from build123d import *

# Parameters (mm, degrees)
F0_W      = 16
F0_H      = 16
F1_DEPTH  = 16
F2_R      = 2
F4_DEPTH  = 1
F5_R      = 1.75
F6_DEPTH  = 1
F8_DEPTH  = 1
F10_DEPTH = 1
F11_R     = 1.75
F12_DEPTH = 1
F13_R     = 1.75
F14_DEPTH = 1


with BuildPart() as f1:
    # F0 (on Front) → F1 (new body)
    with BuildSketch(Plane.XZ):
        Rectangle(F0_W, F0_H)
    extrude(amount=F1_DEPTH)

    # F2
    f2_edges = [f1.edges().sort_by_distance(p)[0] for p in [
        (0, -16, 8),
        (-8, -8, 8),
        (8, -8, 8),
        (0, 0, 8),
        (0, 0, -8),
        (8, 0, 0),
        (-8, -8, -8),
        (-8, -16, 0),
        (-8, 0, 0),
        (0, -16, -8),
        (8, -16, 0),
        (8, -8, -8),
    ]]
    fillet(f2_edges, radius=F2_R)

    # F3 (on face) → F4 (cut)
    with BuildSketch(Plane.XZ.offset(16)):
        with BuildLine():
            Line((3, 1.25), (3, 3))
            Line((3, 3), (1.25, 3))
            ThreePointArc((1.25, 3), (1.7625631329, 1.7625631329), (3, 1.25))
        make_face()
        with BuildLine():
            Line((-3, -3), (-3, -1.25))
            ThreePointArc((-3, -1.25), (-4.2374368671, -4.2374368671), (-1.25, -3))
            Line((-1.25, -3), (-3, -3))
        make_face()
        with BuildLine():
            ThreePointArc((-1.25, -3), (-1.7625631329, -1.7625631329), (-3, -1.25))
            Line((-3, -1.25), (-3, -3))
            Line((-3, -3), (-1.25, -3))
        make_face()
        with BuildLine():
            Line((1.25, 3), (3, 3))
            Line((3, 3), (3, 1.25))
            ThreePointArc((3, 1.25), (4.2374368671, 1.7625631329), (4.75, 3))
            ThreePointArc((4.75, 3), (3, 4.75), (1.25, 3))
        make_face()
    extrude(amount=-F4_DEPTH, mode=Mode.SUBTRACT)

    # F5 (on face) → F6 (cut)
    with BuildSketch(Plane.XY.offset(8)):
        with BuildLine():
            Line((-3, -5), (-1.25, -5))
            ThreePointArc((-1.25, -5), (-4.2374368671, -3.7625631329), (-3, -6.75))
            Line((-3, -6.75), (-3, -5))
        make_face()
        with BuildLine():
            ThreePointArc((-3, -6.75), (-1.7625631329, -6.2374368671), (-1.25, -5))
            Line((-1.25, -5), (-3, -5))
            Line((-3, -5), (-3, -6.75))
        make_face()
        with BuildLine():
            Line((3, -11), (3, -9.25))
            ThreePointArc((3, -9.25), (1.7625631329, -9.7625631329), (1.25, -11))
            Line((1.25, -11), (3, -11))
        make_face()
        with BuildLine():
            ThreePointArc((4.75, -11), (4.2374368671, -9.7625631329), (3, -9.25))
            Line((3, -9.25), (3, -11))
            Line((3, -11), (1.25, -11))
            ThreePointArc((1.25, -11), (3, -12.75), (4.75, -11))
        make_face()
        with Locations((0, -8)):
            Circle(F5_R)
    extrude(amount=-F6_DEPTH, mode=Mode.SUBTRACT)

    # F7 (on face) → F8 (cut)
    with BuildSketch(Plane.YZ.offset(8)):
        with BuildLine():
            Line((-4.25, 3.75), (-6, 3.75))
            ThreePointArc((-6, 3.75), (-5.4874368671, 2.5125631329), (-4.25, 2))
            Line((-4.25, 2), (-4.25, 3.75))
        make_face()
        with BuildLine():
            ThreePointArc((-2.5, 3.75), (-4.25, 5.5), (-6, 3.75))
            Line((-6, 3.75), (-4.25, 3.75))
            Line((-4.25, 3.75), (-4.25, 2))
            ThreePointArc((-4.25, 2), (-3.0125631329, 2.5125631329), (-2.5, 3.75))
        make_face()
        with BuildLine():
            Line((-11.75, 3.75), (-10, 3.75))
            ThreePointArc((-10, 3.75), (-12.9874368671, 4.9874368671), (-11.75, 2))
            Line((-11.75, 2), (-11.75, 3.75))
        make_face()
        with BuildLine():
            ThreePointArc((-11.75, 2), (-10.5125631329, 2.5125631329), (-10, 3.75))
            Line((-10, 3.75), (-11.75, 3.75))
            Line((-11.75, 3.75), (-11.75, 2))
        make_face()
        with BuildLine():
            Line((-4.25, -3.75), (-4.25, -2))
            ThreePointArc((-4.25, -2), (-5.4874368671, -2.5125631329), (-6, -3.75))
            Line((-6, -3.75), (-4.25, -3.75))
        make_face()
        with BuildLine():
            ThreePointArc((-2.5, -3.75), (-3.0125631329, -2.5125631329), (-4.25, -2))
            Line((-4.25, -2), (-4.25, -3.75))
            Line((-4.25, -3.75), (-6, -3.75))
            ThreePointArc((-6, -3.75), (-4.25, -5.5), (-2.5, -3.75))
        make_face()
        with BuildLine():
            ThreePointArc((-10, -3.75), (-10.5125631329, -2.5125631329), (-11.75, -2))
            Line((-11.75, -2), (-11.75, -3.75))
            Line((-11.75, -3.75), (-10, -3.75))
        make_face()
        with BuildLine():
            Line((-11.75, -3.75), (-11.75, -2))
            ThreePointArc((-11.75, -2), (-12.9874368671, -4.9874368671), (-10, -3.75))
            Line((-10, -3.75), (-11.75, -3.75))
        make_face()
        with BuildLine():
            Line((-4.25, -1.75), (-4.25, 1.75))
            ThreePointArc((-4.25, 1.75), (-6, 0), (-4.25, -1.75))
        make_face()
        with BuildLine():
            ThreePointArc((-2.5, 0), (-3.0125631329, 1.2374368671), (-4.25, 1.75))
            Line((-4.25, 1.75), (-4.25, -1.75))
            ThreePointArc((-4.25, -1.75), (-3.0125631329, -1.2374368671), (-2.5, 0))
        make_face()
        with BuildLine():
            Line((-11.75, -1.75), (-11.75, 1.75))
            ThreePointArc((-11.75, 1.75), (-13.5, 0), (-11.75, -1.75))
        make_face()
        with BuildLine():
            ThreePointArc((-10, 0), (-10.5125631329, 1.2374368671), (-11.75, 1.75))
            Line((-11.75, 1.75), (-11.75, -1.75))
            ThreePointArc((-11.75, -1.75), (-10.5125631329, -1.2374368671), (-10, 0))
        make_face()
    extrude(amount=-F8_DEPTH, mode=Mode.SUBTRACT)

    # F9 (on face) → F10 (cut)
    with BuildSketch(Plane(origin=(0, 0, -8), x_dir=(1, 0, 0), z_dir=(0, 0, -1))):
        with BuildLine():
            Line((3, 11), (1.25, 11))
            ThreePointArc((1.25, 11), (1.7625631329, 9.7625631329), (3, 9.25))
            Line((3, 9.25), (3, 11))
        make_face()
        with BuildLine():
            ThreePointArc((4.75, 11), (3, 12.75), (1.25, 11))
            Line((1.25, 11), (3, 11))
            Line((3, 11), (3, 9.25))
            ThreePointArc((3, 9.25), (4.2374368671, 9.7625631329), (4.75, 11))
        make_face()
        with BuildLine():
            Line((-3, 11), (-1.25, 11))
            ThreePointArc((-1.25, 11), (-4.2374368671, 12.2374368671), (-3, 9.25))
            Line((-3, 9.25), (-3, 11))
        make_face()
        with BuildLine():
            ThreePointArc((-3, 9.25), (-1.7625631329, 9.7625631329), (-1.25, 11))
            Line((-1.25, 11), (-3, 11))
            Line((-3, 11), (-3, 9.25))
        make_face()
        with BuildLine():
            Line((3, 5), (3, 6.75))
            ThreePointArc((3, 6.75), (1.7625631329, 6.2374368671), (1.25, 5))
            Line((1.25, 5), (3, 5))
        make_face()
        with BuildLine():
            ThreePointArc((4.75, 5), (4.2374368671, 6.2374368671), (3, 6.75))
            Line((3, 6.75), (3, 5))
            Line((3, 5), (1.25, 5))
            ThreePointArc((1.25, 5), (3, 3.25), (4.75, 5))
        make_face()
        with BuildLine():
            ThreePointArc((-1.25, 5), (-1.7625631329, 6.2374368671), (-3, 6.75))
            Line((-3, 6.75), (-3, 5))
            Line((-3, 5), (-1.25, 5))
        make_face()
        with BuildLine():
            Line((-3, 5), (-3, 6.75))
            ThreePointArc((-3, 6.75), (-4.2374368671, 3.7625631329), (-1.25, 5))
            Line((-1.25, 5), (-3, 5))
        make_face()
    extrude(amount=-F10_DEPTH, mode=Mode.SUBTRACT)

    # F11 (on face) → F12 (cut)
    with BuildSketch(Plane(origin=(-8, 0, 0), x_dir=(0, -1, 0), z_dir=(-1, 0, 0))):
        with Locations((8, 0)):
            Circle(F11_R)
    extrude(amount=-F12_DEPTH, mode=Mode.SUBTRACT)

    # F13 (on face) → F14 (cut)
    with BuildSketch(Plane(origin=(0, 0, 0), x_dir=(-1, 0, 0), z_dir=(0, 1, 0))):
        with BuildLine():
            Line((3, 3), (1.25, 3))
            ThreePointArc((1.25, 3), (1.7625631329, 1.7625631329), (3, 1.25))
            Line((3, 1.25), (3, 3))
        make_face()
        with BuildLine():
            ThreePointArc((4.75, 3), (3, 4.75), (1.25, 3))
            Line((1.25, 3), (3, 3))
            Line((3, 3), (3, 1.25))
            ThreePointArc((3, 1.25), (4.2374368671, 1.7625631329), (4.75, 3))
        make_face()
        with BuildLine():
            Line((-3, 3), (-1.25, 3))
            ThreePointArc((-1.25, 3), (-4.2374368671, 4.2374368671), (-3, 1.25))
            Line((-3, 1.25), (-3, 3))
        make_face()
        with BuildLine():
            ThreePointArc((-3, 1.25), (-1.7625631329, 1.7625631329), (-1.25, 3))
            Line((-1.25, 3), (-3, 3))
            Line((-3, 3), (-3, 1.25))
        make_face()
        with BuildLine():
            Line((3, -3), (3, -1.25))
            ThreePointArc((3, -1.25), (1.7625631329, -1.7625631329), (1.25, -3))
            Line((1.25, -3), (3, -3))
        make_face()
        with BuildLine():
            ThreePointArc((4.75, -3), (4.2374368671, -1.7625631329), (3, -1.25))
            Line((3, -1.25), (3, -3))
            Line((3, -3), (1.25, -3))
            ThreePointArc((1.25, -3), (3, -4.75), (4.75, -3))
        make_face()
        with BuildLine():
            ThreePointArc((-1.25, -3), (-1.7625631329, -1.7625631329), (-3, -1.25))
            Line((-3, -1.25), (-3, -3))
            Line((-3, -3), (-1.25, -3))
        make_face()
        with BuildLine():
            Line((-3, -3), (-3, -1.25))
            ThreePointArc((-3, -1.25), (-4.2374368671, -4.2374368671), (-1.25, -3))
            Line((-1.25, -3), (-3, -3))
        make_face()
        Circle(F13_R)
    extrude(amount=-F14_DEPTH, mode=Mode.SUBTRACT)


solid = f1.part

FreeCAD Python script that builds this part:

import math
import FreeCAD as App
import Part
import Sketcher
Q = App.Units.Quantity


def add_polygon(sketch, points):
    """Adds a closed chain of lines whose ends are joined by coincident constraints."""
    first, n = sketch.GeometryCount, len(points)
    for a, b in zip(points, points[1:] + points[:1]):
        sketch.addGeometry(Part.LineSegment(App.Vector(*a, 0), App.Vector(*b, 0)), False)
    for i in range(n):
        sketch.addConstraint(Sketcher.Constraint("Coincident", first + i, 2, first + (i + 1) % n, 1))

doc = App.newDocument("Part")
params = doc.addObject("Spreadsheet::Sheet", "Params")
for row, (alias, value) in enumerate([
    ("sketch1_width", "16 mm"),
    ("pad1_length", "16 mm"),
    ("fillet_radius", "2 mm"),
    ("sketch2_radius", "1.75 mm"),
    ("pocket1_length", "1 mm"),
    ("sketch3_diameter", "3.5 mm"),
    ("pocket2_length", "1 mm"),
    ("sketch4_radius", "1.75 mm"),
    ("pocket3_length", "1 mm"),
    ("sketch5_radius", "1.75 mm"),
    ("pocket4_length", "1 mm"),
    ("sketch6_diameter", "3.5 mm"),
    ("pocket5_length", "1 mm"),
    ("sketch7_diameter", "3.5 mm"),
    ("pocket6_length", "1 mm"),
], start=1):
    params.set(f"A{row}", alias)
    params.set(f"B{row}", "=" + value)
    params.setAlias(f"B{row}", alias)

body = doc.addObject("PartDesign::Body", "Body")

# Sketch on XZ plane
sketch1 = doc.addObject("Sketcher::SketchObject", "Sketch")
body.addObject(sketch1)
sketch1.AttachmentSupport = (doc.XZ_Plane, [""])
sketch1.MapMode = "FlatFace"
add_polygon(sketch1, [(-8, 8), (-8, -8), (8, -8), (8, 8)])  # lines 0-3
sketch1.addConstraint([
    Sketcher.Constraint("Vertical", 0),
    Sketcher.Constraint("Horizontal", 1),
    Sketcher.Constraint("Vertical", 2),
    Sketcher.Constraint("Horizontal", 3),
    Sketcher.Constraint("Symmetric", 0, 2, 2, 2, -1, 1),
    Sketcher.Constraint("Equal", 3, 0),
    Sketcher.Constraint("DistanceX", 1, 1, 1, 2, Q("16 mm")),
])
sketch1.setExpression("Constraints[10]", "Params.sketch1_width")
pad1 = doc.addObject("PartDesign::Pad", "Pad")
body.addObject(pad1)
pad1.Profile = sketch1
pad1.setExpression("Length", "Params.pad1_length")
doc.recompute()

fillet = doc.addObject("PartDesign::Fillet", "Fillet")
body.addObject(fillet)
fillet.Base = (pad1, ["Edge1"])
fillet.UseAllEdges = True
fillet.setExpression("Radius", "Params.fillet_radius")

# Sketch on XZ plane
sketch2 = doc.addObject("Sketcher::SketchObject", "Sketch001")
body.addObject(sketch2)
sketch2.AttachmentSupport = (doc.XZ_Plane, [""])
sketch2.MapMode = "FlatFace"
sketch2.AttachmentOffset = App.Placement(App.Vector(0, 0, 16), App.Rotation())
sketch2.addGeometry([
    Part.ArcOfCircle(Part.Circle(App.Vector(3, 3, 0), App.Vector(0, 0, 1), 1.8), math.radians(180), math.radians(270)),  # 0
    Part.ArcOfCircle(Part.Circle(App.Vector(3, 3, 0), App.Vector(0, 0, 1), 1.8), math.radians(-90), math.radians(0)),  # 1
    Part.ArcOfCircle(Part.Circle(App.Vector(3, 3, 0), App.Vector(0, 0, 1), 1.8), math.radians(0), math.radians(180)),  # 2
    Part.ArcOfCircle(Part.Circle(App.Vector(-3, -3, 0), App.Vector(0, 0, 1), 1.8), math.radians(90), math.radians(360)),  # 3
    Part.ArcOfCircle(Part.Circle(App.Vector(-3, -3, 0), App.Vector(0, 0, 1), 1.8), math.radians(0), math.radians(90)),  # 4
], False)
sketch2.addConstraint([
    Sketcher.Constraint("Tangent", 0, 2, 1, 1),
    Sketcher.Constraint("Tangent", 1, 2, 2, 1),
    Sketcher.Constraint("Tangent", 2, 2, 0, 1),
    Sketcher.Constraint("Tangent", 3, 1, 4, 2),
    Sketcher.Constraint("Coincident", 4, 1, 3, 2),
    Sketcher.Constraint("Equal", 2, 3),
    Sketcher.Constraint("Symmetric", 0, 3, 3, 3, -1, 1),
    Sketcher.Constraint("Horizontal", 2, 3, 1, 2),
    Sketcher.Constraint("Horizontal", 1, 2, 2, 2),
    Sketcher.Constraint("Horizontal", 3, 3, 4, 1),
    Sketcher.Constraint("Vertical", 2, 3, 0, 2),
    Sketcher.Constraint("Vertical", 4, 3, 3, 1),
    Sketcher.Constraint("Radius", 0, Q("1.75 mm")),
    Sketcher.Constraint("DistanceX", -1, 1, 0, 3, Q("3 mm")),
    Sketcher.Constraint("DistanceY", -1, 1, 0, 3, Q("3 mm")),
])
sketch2.setExpression("Constraints[12]", "Params.sketch2_radius")
pocket1 = doc.addObject("PartDesign::Pocket", "Pocket")
body.addObject(pocket1)
pocket1.Profile = sketch2
pocket1.setExpression("Length", "Params.pocket1_length")

# Sketch on XY plane
sketch3 = doc.addObject("Sketcher::SketchObject", "Sketch002")
body.addObject(sketch3)
sketch3.AttachmentSupport = (doc.XY_Plane, [""])
sketch3.MapMode = "FlatFace"
sketch3.AttachmentOffset = App.Placement(App.Vector(0, 0, 8), App.Rotation())
sketch3.addGeometry([
    Part.ArcOfCircle(Part.Circle(App.Vector(-3, -5, 0), App.Vector(0, 0, 1), 1.8), math.radians(0), math.radians(270)),  # 0
    Part.ArcOfCircle(Part.Circle(App.Vector(-3, -5, 0), App.Vector(0, 0, 1), 1.8), math.radians(-90), math.radians(0)),  # 1
    Part.ArcOfCircle(Part.Circle(App.Vector(3, -11, 0), App.Vector(0, 0, 1), 1.8), math.radians(90), math.radians(180)),  # 2
    Part.ArcOfCircle(Part.Circle(App.Vector(3, -11, 0), App.Vector(0, 0, 1), 1.8), math.radians(180), math.radians(360)),  # 3
    Part.ArcOfCircle(Part.Circle(App.Vector(3, -11, 0), App.Vector(0, 0, 1), 1.8), math.radians(0), math.radians(90)),  # 4
    Part.Circle(App.Vector(0, -8, 0), App.Vector(0, 0, 1), 1.8),  # 5
], False)
sketch3.addConstraint([
    Sketcher.Constraint("Tangent", 0, 1, 1, 2),
    Sketcher.Constraint("Coincident", 1, 1, 0, 2),
    Sketcher.Constraint("Tangent", 2, 2, 3, 1),
    Sketcher.Constraint("Tangent", 3, 2, 4, 1),
    Sketcher.Constraint("Tangent", 4, 2, 2, 1),
    Sketcher.Constraint("Equal", 1, 2),
    Sketcher.Constraint("Equal", 4, 5),
    Sketcher.Constraint("PointOnObject", 5, 3, -2),
    Sketcher.Constraint("Horizontal", 1, 3, 0, 1),
    Sketcher.Constraint("Horizontal", 4, 3, 2, 2),
    Sketcher.Constraint("Horizontal", 2, 2, 3, 2),
    Sketcher.Constraint("Vertical", 0, 3, 1, 1),
    Sketcher.Constraint("Vertical", 3, 3, 4, 2),
    Sketcher.Constraint("Diameter", 5, Q("3.5 mm")),
    Sketcher.Constraint("DistanceX", 0, 3, -1, 1, Q("3 mm")),
    Sketcher.Constraint("DistanceY", 0, 3, -1, 1, Q("5 mm")),
    Sketcher.Constraint("DistanceX", -1, 1, 2, 3, Q("3 mm")),
    Sketcher.Constraint("DistanceY", 2, 3, -1, 1, Q("11 mm")),
    Sketcher.Constraint("DistanceY", 5, 3, -1, 1, Q("8 mm")),
])
sketch3.setExpression("Constraints[13]", "Params.sketch3_diameter")
pocket2 = doc.addObject("PartDesign::Pocket", "Pocket001")
body.addObject(pocket2)
pocket2.Profile = sketch3
pocket2.setExpression("Length", "Params.pocket2_length")

# Sketch on YZ plane
sketch4 = doc.addObject("Sketcher::SketchObject", "Sketch003")
body.addObject(sketch4)
sketch4.AttachmentSupport = (doc.YZ_Plane, [""])
sketch4.MapMode = "FlatFace"
sketch4.AttachmentOffset = App.Placement(App.Vector(0, 0, 8), App.Rotation())
sketch4.addGeometry([
    Part.ArcOfCircle(Part.Circle(App.Vector(-4.2, 3.8, 0), App.Vector(0, 0, 1), 1.8), math.radians(180), math.radians(270)),  # 0
    Part.ArcOfCircle(Part.Circle(App.Vector(-4.2, 3.8, 0), App.Vector(0, 0, 1), 1.8), math.radians(-90), math.radians(0)),  # 1
    Part.ArcOfCircle(Part.Circle(App.Vector(-4.2, 3.8, 0), App.Vector(0, 0, 1), 1.8), math.radians(0), math.radians(180)),  # 2
    Part.ArcOfCircle(Part.Circle(App.Vector(-11.8, 3.8, 0), App.Vector(0, 0, 1), 1.8), math.radians(0), math.radians(270)),  # 3
    Part.ArcOfCircle(Part.Circle(App.Vector(-11.8, 3.8, 0), App.Vector(0, 0, 1), 1.8), math.radians(-90), math.radians(0)),  # 4
    Part.ArcOfCircle(Part.Circle(App.Vector(-4.2, -3.8, 0), App.Vector(0, 0, 1), 1.8), math.radians(90), math.radians(180)),  # 5
    Part.ArcOfCircle(Part.Circle(App.Vector(-4.2, -3.8, 0), App.Vector(0, 0, 1), 1.8), math.radians(180), math.radians(360)),  # 6
    Part.ArcOfCircle(Part.Circle(App.Vector(-4.2, -3.8, 0), App.Vector(0, 0, 1), 1.8), math.radians(0), math.radians(90)),  # 7
    Part.ArcOfCircle(Part.Circle(App.Vector(-11.8, -3.8, 0), App.Vector(0, 0, 1), 1.8), math.radians(0), math.radians(90)),  # 8
    Part.ArcOfCircle(Part.Circle(App.Vector(-11.8, -3.8, 0), App.Vector(0, 0, 1), 1.8), math.radians(90), math.radians(360)),  # 9
    Part.ArcOfCircle(Part.Circle(App.Vector(-4.2, 0, 0), App.Vector(0, 0, 1), 1.8), math.radians(90), math.radians(270)),  # 10
    Part.ArcOfCircle(Part.Circle(App.Vector(-4.2, 0, 0), App.Vector(0, 0, 1), 1.8), math.radians(-90), math.radians(0)),  # 11
    Part.ArcOfCircle(Part.Circle(App.Vector(-4.2, 0, 0), App.Vector(0, 0, 1), 1.8), math.radians(0), math.radians(90)),  # 12
    Part.ArcOfCircle(Part.Circle(App.Vector(-11.8, 0, 0), App.Vector(0, 0, 1), 1.8), math.radians(90), math.radians(270)),  # 13
    Part.ArcOfCircle(Part.Circle(App.Vector(-11.8, 0, 0), App.Vector(0, 0, 1), 1.8), math.radians(-90), math.radians(0)),  # 14
    Part.ArcOfCircle(Part.Circle(App.Vector(-11.8, 0, 0), App.Vector(0, 0, 1), 1.8), math.radians(0), math.radians(90)),  # 15
], False)
sketch4.addConstraint([
    Sketcher.Constraint("Tangent", 0, 2, 1, 1),
    Sketcher.Constraint("Tangent", 1, 2, 2, 1),
    Sketcher.Constraint("Tangent", 2, 2, 0, 1),
    Sketcher.Constraint("Tangent", 3, 1, 4, 2),
    Sketcher.Constraint("Coincident", 4, 1, 3, 2),
    Sketcher.Constraint("Tangent", 5, 2, 6, 1),
    Sketcher.Constraint("Tangent", 6, 2, 7, 1),
    Sketcher.Constraint("Tangent", 7, 2, 5, 1),
    Sketcher.Constraint("Tangent", 8, 1, 9, 2),
    Sketcher.Constraint("Coincident", 9, 1, 8, 2),
    Sketcher.Constraint("Tangent", 10, 2, 11, 1),
    Sketcher.Constraint("Tangent", 11, 2, 12, 1),
    Sketcher.Constraint("Tangent", 12, 2, 10, 1),
    Sketcher.Constraint("Tangent", 13, 2, 14, 1),
    Sketcher.Constraint("Tangent", 14, 2, 15, 1),
    Sketcher.Constraint("Tangent", 15, 2, 13, 1),
    Sketcher.Constraint("Equal", 2, 3),
    Sketcher.Constraint("Equal", 4, 5),
    Sketcher.Constraint("Equal", 7, 8),
    Sketcher.Constraint("Equal", 9, 10),
    Sketcher.Constraint("Equal", 12, 13),
    Sketcher.Constraint("Symmetric", 0, 3, 5, 3, -1),
    Sketcher.Constraint("Symmetric", 3, 3, 8, 3, -1),
    Sketcher.Constraint("Symmetric", 10, 2, 12, 2, -1),
    Sketcher.Constraint("Symmetric", 13, 2, 15, 2, -1),
    Sketcher.Constraint("PointOnObject", 11, 2, -1),
    Sketcher.Constraint("PointOnObject", 14, 2, -1),
    Sketcher.Constraint("Horizontal", 2, 3, 3, 3),
    Sketcher.Constraint("Horizontal", 4, 3, 1, 2),
    Sketcher.Constraint("Horizontal", 1, 2, 2, 2),
    Sketcher.Constraint("Horizontal", 2, 2, 3, 1),
    Sketcher.Constraint("Horizontal", 9, 3, 5, 2),
    Sketcher.Constraint("Horizontal", 5, 2, 6, 2),
    Sketcher.Constraint("Horizontal", 6, 2, 8, 1),
    Sketcher.Constraint("Vertical", 7, 3, 10, 3),
    Sketcher.Constraint("Vertical", 9, 3, 13, 3),
    Sketcher.Constraint("Vertical", 12, 3, 0, 2),
    Sketcher.Constraint("Vertical", 15, 3, 4, 1),
    Sketcher.Constraint("Vertical", 0, 2, 7, 2),
    Sketcher.Constraint("Vertical", 4, 1, 9, 1),
    Sketcher.Constraint("Vertical", 7, 2, 10, 2),
    Sketcher.Constraint("Vertical", 9, 1, 13, 2),
    Sketcher.Constraint("Radius", 0, Q("1.75 mm")),
    Sketcher.Constraint("DistanceY", -1, 1, 0, 2, Q("2 mm")),
    Sketcher.Constraint("DistanceX", 2, 2, -1, 1, Q("6 mm")),
    Sketcher.Constraint("DistanceX", 3, 1, -1, 1, Q("10 mm")),
])
sketch4.setExpression("Constraints[42]", "Params.sketch4_radius")
pocket3 = doc.addObject("PartDesign::Pocket", "Pocket002")
body.addObject(pocket3)
pocket3.Profile = sketch4
pocket3.setExpression("Length", "Params.pocket3_length")

# Sketch on XY plane
sketch5 = doc.addObject("Sketcher::SketchObject", "Sketch004")
body.addObject(sketch5)
sketch5.AttachmentSupport = (doc.XY_Plane, [""])
sketch5.MapMode = "FlatFace"
sketch5.AttachmentOffset = App.Placement(App.Vector(0, 0, -8), App.Rotation())
sketch5.addGeometry([
    Part.ArcOfCircle(Part.Circle(App.Vector(3, -11, 0), App.Vector(0, 0, 1), 1.8), math.radians(90), math.radians(180)),  # 0
    Part.ArcOfCircle(Part.Circle(App.Vector(3, -11, 0), App.Vector(0, 0, 1), 1.8), math.radians(0), math.radians(90)),  # 1
    Part.ArcOfCircle(Part.Circle(App.Vector(3, -11, 0), App.Vector(0, 0, 1), 1.8), math.radians(180), math.radians(360)),  # 2
    Part.ArcOfCircle(Part.Circle(App.Vector(-3, -11, 0), App.Vector(0, 0, 1), 1.8), math.radians(90), math.radians(360)),  # 3
    Part.ArcOfCircle(Part.Circle(App.Vector(-3, -11, 0), App.Vector(0, 0, 1), 1.8), math.radians(0), math.radians(90)),  # 4
    Part.ArcOfCircle(Part.Circle(App.Vector(3, -5, 0), App.Vector(0, 0, 1), 1.8), math.radians(180), math.radians(270)),  # 5
    Part.ArcOfCircle(Part.Circle(App.Vector(3, -5, 0), App.Vector(0, 0, 1), 1.8), math.radians(0), math.radians(180)),  # 6
    Part.ArcOfCircle(Part.Circle(App.Vector(3, -5, 0), App.Vector(0, 0, 1), 1.8), math.radians(-90), math.radians(0)),  # 7
    Part.ArcOfCircle(Part.Circle(App.Vector(-3, -5, 0), App.Vector(0, 0, 1), 1.8), math.radians(-90), math.radians(0)),  # 8
    Part.ArcOfCircle(Part.Circle(App.Vector(-3, -5, 0), App.Vector(0, 0, 1), 1.8), math.radians(0), math.radians(270)),  # 9
], False)
sketch5.addConstraint([
    Sketcher.Constraint("Tangent", 0, 1, 1, 2),
    Sketcher.Constraint("Tangent", 1, 1, 2, 2),
    Sketcher.Constraint("Tangent", 2, 1, 0, 2),
    Sketcher.Constraint("Tangent", 3, 1, 4, 2),
    Sketcher.Constraint("Coincident", 4, 1, 3, 2),
    Sketcher.Constraint("Tangent", 5, 1, 6, 2),
    Sketcher.Constraint("Tangent", 6, 1, 7, 2),
    Sketcher.Constraint("Tangent", 7, 1, 5, 2),
    Sketcher.Constraint("Tangent", 8, 1, 9, 2),
    Sketcher.Constraint("Coincident", 9, 1, 8, 2),
    Sketcher.Constraint("Equal", 2, 3),
    Sketcher.Constraint("Equal", 4, 5),
    Sketcher.Constraint("Equal", 7, 8),
    Sketcher.Constraint("Symmetric", 0, 3, 3, 3, -2),
    Sketcher.Constraint("Symmetric", 5, 3, 8, 3, -2),
    Sketcher.Constraint("Horizontal", 4, 3, 1, 1),
    Sketcher.Constraint("Horizontal", 1, 1, 2, 1),
    Sketcher.Constraint("Horizontal", 2, 1, 4, 1),
    Sketcher.Constraint("Horizontal", 9, 3, 5, 1),
    Sketcher.Constraint("Horizontal", 5, 1, 6, 1),
    Sketcher.Constraint("Horizontal", 6, 1, 9, 1),
    Sketcher.Constraint("Vertical", 2, 3, 5, 3),
    Sketcher.Constraint("Vertical", 7, 3, 0, 1),
    Sketcher.Constraint("Vertical", 9, 3, 3, 1),
    Sketcher.Constraint("Vertical", 0, 1, 7, 1),
    Sketcher.Constraint("Vertical", 3, 1, 8, 1),
    Sketcher.Constraint("Radius", 0, Q("1.75 mm")),
    Sketcher.Constraint("DistanceX", -1, 1, 0, 3, Q("3 mm")),
    Sketcher.Constraint("DistanceY", 0, 3, -1, 1, Q("11 mm")),
    Sketcher.Constraint("DistanceY", 5, 3, -1, 1, Q("5 mm")),
])
sketch5.setExpression("Constraints[26]", "Params.sketch5_radius")
pocket4 = doc.addObject("PartDesign::Pocket", "Pocket003")
body.addObject(pocket4)
pocket4.Profile = sketch5
pocket4.setExpression("Length", "Params.pocket4_length")
pocket4.Reversed = True

# Sketch on YZ plane
sketch6 = doc.addObject("Sketcher::SketchObject", "Sketch005")
body.addObject(sketch6)
sketch6.AttachmentSupport = (doc.YZ_Plane, [""])
sketch6.MapMode = "FlatFace"
sketch6.AttachmentOffset = App.Placement(App.Vector(0, 0, -8), App.Rotation())
sketch6.addGeometry(Part.Circle(App.Vector(-8, 0, 0), App.Vector(0, 0, 1), 1.8), False)
sketch6.addConstraint([
    Sketcher.Constraint("PointOnObject", 0, 3, -1),
    Sketcher.Constraint("Diameter", 0, Q("3.5 mm")),
    Sketcher.Constraint("DistanceX", 0, 3, -1, 1, Q("8 mm")),
])
sketch6.setExpression("Constraints[1]", "Params.sketch6_diameter")
pocket5 = doc.addObject("PartDesign::Pocket", "Pocket004")
body.addObject(pocket5)
pocket5.Profile = sketch6
pocket5.setExpression("Length", "Params.pocket5_length")
pocket5.Reversed = True

# Sketch on XZ plane
sketch7 = doc.addObject("Sketcher::SketchObject", "Sketch006")
body.addObject(sketch7)
sketch7.AttachmentSupport = (doc.XZ_Plane, [""])
sketch7.MapMode = "FlatFace"
sketch7.addGeometry([
    Part.ArcOfCircle(Part.Circle(App.Vector(-3, 3, 0), App.Vector(0, 0, 1), 1.8), math.radians(-90), math.radians(0)),  # 0
    Part.ArcOfCircle(Part.Circle(App.Vector(-3, 3, 0), App.Vector(0, 0, 1), 1.8), math.radians(180), math.radians(270)),  # 1
    Part.ArcOfCircle(Part.Circle(App.Vector(-3, 3, 0), App.Vector(0, 0, 1), 1.8), math.radians(0), math.radians(180)),  # 2
    Part.ArcOfCircle(Part.Circle(App.Vector(3, 3, 0), App.Vector(0, 0, 1), 1.8), math.radians(-90), math.radians(180)),  # 3
    Part.ArcOfCircle(Part.Circle(App.Vector(3, 3, 0), App.Vector(0, 0, 1), 1.8), math.radians(180), math.radians(270)),  # 4
    Part.ArcOfCircle(Part.Circle(App.Vector(-3, -3, 0), App.Vector(0, 0, 1), 1.8), math.radians(0), math.radians(90)),  # 5
    Part.ArcOfCircle(Part.Circle(App.Vector(-3, -3, 0), App.Vector(0, 0, 1), 1.8), math.radians(180), math.radians(360)),  # 6
    Part.ArcOfCircle(Part.Circle(App.Vector(-3, -3, 0), App.Vector(0, 0, 1), 1.8), math.radians(90), math.radians(180)),  # 7
    Part.ArcOfCircle(Part.Circle(App.Vector(3, -3, 0), App.Vector(0, 0, 1), 1.8), math.radians(90), math.radians(180)),  # 8
    Part.ArcOfCircle(Part.Circle(App.Vector(3, -3, 0), App.Vector(0, 0, 1), 1.8), math.radians(180), math.radians(450)),  # 9
    Part.Circle(App.Vector(0, 0, 0), App.Vector(0, 0, 1), 1.8),  # 10
], False)
sketch7.addConstraint([
    Sketcher.Constraint("Tangent", 0, 1, 1, 2),
    Sketcher.Constraint("Tangent", 1, 1, 2, 2),
    Sketcher.Constraint("Tangent", 2, 1, 0, 2),
    Sketcher.Constraint("Tangent", 3, 1, 4, 2),
    Sketcher.Constraint("Coincident", 4, 1, 3, 2),
    Sketcher.Constraint("Tangent", 5, 1, 6, 2),
    Sketcher.Constraint("Tangent", 6, 1, 7, 2),
    Sketcher.Constraint("Tangent", 7, 1, 5, 2),
    Sketcher.Constraint("Tangent", 8, 1, 9, 2),
    Sketcher.Constraint("Coincident", 9, 1, 8, 2),
    Sketcher.Constraint("Coincident", 10, 3, -1, 1),
    Sketcher.Constraint("Equal", 2, 3),
    Sketcher.Constraint("Equal", 4, 5),
    Sketcher.Constraint("Equal", 7, 8),
    Sketcher.Constraint("Equal", 9, 10),
    Sketcher.Constraint("Symmetric", 3, 3, 5, 3, -1, 1),
    Sketcher.Constraint("Symmetric", 0, 3, 8, 3, -1, 1),
    Sketcher.Constraint("Symmetric", 0, 3, 3, 3, -2),
    Sketcher.Constraint("Horizontal", 4, 3, 1, 1),
    Sketcher.Constraint("Horizontal", 1, 1, 2, 1),
    Sketcher.Constraint("Horizontal", 2, 1, 4, 1),
    Sketcher.Constraint("Horizontal", 9, 3, 5, 1),
    Sketcher.Constraint("Horizontal", 5, 1, 6, 1),
    Sketcher.Constraint("Horizontal", 6, 1, 9, 1),
    Sketcher.Constraint("Vertical", 7, 3, 0, 1),
    Sketcher.Constraint("Vertical", 9, 3, 3, 1),
    Sketcher.Constraint("Vertical", 0, 1, 7, 1),
    Sketcher.Constraint("Vertical", 3, 1, 8, 1),
    Sketcher.Constraint("Diameter", 10, Q("3.5 mm")),
    Sketcher.Constraint("DistanceX", 0, 3, -1, 1, Q("3 mm")),
    Sketcher.Constraint("DistanceY", -1, 1, 0, 3, Q("3 mm")),
])
sketch7.setExpression("Constraints[28]", "Params.sketch7_diameter")
pocket6 = doc.addObject("PartDesign::Pocket", "Pocket005")
body.addObject(pocket6)
pocket6.Profile = sketch7
pocket6.setExpression("Length", "Params.pocket6_length")
pocket6.Reversed = True

doc.recompute()
